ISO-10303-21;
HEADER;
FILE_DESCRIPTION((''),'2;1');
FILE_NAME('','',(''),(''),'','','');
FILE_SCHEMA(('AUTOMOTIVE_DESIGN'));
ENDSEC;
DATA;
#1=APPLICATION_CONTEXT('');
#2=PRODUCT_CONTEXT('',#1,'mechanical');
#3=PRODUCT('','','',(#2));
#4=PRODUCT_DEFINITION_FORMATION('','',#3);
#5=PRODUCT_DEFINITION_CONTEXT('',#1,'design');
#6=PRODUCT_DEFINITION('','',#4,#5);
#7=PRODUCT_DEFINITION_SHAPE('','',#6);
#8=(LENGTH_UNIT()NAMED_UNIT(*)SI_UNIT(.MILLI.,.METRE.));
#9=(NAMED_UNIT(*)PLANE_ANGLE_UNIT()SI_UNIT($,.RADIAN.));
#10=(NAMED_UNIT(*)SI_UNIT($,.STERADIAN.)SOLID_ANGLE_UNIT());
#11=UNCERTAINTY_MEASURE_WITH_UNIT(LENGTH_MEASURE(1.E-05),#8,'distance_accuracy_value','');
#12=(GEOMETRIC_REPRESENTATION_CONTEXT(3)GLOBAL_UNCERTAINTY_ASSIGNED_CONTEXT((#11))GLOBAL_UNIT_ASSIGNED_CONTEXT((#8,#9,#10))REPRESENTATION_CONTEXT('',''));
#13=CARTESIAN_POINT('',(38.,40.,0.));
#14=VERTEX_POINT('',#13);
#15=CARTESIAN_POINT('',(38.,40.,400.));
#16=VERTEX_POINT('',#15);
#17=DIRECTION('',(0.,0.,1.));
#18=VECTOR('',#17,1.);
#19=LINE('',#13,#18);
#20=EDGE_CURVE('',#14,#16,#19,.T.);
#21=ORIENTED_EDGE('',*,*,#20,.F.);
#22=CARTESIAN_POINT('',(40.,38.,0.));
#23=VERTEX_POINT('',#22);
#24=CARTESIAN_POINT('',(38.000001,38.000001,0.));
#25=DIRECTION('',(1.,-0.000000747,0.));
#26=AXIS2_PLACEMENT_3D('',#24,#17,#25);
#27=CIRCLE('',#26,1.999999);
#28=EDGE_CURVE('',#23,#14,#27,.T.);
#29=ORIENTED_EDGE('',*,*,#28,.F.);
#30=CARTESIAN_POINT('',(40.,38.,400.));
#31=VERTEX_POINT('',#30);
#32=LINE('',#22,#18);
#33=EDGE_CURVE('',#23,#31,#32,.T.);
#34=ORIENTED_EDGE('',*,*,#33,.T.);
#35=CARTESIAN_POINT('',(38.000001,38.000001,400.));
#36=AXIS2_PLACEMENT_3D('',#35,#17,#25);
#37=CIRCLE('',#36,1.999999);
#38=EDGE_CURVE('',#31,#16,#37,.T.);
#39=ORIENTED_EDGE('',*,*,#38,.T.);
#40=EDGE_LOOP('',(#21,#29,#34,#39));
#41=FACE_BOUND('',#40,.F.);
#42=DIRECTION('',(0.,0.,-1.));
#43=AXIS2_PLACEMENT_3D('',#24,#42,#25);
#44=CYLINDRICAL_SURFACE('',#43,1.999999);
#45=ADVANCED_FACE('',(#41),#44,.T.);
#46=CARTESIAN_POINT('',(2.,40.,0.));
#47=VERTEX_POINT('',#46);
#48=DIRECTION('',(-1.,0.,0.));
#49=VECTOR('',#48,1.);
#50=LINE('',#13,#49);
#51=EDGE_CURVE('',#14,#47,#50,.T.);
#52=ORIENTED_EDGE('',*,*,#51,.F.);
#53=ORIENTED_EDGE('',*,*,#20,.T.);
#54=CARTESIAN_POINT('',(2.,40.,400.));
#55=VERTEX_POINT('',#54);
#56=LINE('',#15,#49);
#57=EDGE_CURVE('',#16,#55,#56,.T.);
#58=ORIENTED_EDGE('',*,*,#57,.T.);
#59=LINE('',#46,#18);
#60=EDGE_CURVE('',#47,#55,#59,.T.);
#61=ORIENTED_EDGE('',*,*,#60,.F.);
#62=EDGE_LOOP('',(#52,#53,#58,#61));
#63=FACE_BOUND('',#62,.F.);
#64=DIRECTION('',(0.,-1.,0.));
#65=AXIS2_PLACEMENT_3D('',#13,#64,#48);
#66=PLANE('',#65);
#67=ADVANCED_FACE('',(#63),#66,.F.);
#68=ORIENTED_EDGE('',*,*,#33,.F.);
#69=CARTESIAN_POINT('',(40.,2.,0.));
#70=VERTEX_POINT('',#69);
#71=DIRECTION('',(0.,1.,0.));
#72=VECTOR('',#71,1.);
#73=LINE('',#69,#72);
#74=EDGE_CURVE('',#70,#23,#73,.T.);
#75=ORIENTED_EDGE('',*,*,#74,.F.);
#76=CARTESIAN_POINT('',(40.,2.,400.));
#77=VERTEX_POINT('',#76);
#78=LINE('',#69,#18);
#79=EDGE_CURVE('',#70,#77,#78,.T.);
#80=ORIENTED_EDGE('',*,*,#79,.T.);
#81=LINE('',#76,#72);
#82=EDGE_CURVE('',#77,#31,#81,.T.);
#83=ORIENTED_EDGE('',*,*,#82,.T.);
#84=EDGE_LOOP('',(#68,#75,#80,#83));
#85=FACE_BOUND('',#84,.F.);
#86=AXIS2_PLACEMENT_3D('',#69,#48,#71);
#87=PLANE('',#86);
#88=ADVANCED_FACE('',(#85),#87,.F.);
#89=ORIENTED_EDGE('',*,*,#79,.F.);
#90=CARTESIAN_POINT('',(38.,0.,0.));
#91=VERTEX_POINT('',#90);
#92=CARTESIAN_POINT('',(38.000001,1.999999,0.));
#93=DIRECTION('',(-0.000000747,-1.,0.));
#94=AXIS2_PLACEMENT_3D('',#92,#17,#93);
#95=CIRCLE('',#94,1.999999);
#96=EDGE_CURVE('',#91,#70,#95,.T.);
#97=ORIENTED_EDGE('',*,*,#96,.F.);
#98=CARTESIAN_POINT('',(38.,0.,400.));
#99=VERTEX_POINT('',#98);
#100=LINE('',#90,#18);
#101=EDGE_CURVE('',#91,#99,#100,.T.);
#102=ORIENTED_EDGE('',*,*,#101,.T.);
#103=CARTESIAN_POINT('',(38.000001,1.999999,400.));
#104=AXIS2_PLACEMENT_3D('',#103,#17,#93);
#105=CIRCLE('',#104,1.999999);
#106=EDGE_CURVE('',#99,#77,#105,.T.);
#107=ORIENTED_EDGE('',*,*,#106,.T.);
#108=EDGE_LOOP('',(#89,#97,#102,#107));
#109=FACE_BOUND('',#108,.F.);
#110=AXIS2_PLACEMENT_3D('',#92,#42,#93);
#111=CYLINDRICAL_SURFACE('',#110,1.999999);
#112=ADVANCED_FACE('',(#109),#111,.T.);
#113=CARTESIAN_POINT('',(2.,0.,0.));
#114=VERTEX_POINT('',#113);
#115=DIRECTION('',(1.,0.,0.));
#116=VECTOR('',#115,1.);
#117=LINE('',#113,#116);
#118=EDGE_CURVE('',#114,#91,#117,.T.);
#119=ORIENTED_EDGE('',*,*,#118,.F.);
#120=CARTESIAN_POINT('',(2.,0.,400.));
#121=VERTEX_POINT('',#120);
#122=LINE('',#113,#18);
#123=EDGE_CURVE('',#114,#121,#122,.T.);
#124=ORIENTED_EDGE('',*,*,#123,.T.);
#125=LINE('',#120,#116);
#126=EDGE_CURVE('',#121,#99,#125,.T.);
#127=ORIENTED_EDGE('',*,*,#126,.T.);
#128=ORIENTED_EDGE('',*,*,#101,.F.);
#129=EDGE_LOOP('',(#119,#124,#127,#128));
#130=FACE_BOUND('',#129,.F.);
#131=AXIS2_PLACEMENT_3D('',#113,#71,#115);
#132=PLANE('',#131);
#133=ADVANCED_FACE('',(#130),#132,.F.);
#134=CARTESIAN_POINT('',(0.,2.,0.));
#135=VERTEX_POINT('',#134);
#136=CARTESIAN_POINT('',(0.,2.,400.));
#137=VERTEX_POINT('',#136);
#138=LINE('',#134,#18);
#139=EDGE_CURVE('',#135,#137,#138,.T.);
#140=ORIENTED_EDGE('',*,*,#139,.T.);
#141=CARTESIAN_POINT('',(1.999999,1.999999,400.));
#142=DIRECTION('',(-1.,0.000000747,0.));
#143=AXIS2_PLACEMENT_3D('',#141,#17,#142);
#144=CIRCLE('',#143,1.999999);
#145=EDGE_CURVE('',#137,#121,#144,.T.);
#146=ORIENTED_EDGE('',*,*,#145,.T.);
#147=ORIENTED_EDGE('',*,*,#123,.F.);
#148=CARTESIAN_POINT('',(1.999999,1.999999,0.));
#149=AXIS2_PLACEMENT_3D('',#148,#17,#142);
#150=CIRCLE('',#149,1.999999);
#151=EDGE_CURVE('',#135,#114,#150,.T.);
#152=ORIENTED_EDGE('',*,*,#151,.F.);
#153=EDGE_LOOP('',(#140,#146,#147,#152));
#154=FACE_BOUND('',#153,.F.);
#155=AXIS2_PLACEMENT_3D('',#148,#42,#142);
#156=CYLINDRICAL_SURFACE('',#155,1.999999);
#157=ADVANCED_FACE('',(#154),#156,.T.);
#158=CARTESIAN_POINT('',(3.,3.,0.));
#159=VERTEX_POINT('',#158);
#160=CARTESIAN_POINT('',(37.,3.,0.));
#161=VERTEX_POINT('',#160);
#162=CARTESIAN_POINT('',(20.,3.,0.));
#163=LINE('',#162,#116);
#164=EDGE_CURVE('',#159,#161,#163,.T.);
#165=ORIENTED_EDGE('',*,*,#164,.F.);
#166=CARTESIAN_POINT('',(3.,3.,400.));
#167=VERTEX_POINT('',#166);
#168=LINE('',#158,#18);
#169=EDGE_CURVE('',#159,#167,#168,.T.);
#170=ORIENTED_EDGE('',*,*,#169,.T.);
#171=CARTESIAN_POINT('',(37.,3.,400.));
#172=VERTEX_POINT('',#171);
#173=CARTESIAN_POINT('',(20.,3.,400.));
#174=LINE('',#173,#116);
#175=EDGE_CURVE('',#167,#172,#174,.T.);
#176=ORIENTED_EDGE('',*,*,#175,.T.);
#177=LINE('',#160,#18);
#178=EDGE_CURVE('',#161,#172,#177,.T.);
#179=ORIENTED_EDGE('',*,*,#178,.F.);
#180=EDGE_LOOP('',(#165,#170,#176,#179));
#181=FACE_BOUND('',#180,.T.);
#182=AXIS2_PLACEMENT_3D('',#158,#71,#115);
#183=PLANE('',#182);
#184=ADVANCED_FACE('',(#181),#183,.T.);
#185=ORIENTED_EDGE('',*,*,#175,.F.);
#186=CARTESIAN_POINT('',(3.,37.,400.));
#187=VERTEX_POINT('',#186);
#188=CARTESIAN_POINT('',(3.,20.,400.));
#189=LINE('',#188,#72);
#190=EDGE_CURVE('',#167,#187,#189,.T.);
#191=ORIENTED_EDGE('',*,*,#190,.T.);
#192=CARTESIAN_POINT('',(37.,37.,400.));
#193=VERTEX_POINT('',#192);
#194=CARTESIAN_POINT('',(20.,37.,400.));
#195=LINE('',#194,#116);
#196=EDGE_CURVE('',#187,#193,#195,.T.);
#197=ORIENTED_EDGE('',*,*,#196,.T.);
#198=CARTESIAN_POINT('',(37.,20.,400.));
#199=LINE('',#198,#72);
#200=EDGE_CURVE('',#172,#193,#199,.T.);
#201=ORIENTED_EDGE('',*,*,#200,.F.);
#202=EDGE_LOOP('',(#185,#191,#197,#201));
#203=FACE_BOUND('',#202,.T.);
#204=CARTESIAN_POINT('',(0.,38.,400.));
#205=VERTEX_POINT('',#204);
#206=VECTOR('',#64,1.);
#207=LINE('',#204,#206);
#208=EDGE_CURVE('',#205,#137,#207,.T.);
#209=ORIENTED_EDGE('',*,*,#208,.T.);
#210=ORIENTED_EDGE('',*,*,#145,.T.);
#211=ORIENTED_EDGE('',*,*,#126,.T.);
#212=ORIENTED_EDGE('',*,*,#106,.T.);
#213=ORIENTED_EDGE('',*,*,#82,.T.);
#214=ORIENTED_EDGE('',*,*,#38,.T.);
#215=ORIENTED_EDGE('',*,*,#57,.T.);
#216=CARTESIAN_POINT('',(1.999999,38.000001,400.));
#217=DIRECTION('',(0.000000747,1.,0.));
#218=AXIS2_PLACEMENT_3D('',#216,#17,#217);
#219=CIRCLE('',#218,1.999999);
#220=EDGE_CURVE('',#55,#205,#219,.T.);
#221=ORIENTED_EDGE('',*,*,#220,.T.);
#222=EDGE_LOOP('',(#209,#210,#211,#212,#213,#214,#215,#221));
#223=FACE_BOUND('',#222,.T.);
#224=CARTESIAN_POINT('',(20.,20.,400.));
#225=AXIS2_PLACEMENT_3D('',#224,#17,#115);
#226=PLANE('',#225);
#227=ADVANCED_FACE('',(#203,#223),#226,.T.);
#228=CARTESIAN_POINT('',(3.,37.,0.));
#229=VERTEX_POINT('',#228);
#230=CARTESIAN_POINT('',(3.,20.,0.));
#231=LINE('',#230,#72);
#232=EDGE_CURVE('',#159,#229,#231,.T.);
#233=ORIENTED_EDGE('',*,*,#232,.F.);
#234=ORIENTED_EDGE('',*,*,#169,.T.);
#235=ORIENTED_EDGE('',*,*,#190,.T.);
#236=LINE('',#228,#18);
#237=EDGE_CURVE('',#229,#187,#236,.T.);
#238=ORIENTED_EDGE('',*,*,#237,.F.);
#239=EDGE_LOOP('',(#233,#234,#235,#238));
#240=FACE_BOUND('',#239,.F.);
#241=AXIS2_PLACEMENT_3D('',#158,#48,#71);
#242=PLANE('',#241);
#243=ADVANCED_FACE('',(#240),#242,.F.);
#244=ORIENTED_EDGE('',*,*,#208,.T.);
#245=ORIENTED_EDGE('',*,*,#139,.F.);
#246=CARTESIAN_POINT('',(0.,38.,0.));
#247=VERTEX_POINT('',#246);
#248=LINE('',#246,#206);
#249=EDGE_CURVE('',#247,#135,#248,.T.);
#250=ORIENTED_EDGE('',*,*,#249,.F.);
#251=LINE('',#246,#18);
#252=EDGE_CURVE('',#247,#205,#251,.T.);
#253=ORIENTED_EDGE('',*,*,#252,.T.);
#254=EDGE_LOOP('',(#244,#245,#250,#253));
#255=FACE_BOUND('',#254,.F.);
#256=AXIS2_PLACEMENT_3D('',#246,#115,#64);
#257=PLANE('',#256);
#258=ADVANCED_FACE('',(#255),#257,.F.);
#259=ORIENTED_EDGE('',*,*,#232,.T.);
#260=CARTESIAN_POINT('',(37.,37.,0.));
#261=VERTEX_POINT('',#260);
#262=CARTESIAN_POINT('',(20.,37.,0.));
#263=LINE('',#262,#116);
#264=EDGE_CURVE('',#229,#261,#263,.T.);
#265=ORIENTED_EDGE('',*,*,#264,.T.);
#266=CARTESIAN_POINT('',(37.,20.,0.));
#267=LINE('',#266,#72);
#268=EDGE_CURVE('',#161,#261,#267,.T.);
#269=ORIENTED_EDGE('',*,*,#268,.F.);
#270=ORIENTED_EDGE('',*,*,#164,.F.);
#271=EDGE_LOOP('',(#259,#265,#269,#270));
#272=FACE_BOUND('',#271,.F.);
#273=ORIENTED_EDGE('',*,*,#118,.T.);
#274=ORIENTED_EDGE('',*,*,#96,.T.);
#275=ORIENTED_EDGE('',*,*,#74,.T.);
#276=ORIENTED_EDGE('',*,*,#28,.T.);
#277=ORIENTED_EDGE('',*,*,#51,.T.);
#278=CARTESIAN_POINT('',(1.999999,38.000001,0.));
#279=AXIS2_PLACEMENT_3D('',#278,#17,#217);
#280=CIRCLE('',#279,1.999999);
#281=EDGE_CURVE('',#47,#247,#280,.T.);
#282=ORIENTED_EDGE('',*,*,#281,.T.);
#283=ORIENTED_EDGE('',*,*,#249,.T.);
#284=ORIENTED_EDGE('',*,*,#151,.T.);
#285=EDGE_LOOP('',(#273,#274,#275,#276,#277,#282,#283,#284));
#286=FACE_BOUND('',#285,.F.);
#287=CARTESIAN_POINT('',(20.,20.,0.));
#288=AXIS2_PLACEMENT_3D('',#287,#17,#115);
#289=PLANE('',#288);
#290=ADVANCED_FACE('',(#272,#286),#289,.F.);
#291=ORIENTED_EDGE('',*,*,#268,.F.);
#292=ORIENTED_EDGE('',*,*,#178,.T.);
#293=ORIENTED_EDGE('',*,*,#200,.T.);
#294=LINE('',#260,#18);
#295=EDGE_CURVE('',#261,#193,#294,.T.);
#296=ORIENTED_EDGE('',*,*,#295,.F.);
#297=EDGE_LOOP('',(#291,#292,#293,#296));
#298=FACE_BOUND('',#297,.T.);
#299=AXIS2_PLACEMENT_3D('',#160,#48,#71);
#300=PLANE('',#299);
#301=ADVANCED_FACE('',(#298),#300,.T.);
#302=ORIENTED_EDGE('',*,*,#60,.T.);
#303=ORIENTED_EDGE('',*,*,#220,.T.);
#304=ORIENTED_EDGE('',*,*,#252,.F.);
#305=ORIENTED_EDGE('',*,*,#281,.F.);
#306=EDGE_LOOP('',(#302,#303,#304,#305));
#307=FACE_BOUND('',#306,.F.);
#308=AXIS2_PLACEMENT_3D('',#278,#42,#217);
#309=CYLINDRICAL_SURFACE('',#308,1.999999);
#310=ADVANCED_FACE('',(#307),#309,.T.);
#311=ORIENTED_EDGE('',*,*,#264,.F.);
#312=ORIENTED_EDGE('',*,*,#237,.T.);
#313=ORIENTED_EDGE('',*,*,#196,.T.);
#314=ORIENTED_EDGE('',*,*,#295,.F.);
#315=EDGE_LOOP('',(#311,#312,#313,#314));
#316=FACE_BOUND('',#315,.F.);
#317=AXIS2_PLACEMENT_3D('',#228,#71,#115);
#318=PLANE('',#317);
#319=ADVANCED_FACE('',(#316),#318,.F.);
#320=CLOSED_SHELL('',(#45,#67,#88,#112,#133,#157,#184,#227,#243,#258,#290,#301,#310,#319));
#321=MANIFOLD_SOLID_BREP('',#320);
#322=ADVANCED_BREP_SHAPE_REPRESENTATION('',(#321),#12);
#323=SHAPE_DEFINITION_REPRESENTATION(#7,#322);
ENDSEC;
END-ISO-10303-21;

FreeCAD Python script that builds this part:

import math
import FreeCAD as App
import Part
import Sketcher
from FreeCAD import Vector
Q = App.Units.Quantity


def add_polygon(sketch, points):
    """Adds a closed chain of lines whose ends are joined by coincident constraints."""
    first, n = sketch.GeometryCount, len(points)
    for a, b in zip(points, points[1:] + points[:1]):
        sketch.addGeometry(Part.LineSegment(App.Vector(*a, 0), App.Vector(*b, 0)), False)
    for i in range(n):
        sketch.addConstraint(Sketcher.Constraint("Coincident", first + i, 2, first + (i + 1) % n, 1))

doc = App.newDocument("Part")
body = doc.addObject("PartDesign::Body", "Body")

# Sketch on XY plane
sketch1 = body.newObject("Sketcher::SketchObject", "Sketch")
sketch1.AttachmentSupport = (doc.getObject("XY_Plane"), [""])
sketch1.MapMode = "FlatFace"
sketch1.addGeometry(Part.LineSegment(Vector(2, 0, 0), Vector(38, 0, 0)), False)  # 0
sketch1.addGeometry(Part.ArcOfCircle(Part.Circle(Vector(38, 2, 0), Vector(0, 0, 1), 2), math.radians(-90), math.radians(0)), False)  # 1
sketch1.addGeometry(Part.LineSegment(Vector(40, 2, 0), Vector(40, 38, 0)), False)  # 2
sketch1.addGeometry(Part.ArcOfCircle(Part.Circle(Vector(38, 38, 0), Vector(0, 0, 1), 2), math.radians(0), math.radians(90)), False)  # 3
sketch1.addGeometry(Part.LineSegment(Vector(38, 40, 0), Vector(2, 40, 0)), False)  # 4
sketch1.addGeometry(Part.ArcOfCircle(Part.Circle(Vector(2, 38, 0), Vector(0, 0, 1), 2), math.radians(90), math.radians(180)), False)  # 5
sketch1.addGeometry(Part.LineSegment(Vector(0, 38, 0), Vector(0, 2, 0)), False)  # 6
sketch1.addGeometry(Part.ArcOfCircle(Part.Circle(Vector(2, 2, 0), Vector(0, 0, 1), 2), math.radians(180), math.radians(270)), False)  # 7
add_polygon(sketch1, [(37, 3), (3, 3), (3, 37), (37, 37)])  # lines 8-11
sketch1.addConstraint(Sketcher.Constraint("Tangent", 0, 2, 1, 1))
sketch1.addConstraint(Sketcher.Constraint("Tangent", 1, 2, 2, 1))
sketch1.addConstraint(Sketcher.Constraint("Tangent", 2, 2, 3, 1))
sketch1.addConstraint(Sketcher.Constraint("Tangent", 3, 2, 4, 1))
sketch1.addConstraint(Sketcher.Constraint("Tangent", 4, 2, 5, 1))
sketch1.addConstraint(Sketcher.Constraint("Tangent", 5, 2, 6, 1))
sketch1.addConstraint(Sketcher.Constraint("Tangent", 6, 2, 7, 1))
sketch1.addConstraint(Sketcher.Constraint("Tangent", 7, 2, 0, 1))
sketch1.addConstraint(Sketcher.Constraint("Horizontal", 0))
sketch1.addConstraint(Sketcher.Constraint("Vertical", 2))
sketch1.addConstraint(Sketcher.Constraint("Horizontal", 4))
sketch1.addConstraint(Sketcher.Constraint("Vertical", 6))
sketch1.addConstraint(Sketcher.Constraint("Horizontal", 8))
sketch1.addConstraint(Sketcher.Constraint("Vertical", 9))
sketch1.addConstraint(Sketcher.Constraint("Horizontal", 10))
sketch1.addConstraint(Sketcher.Constraint("Vertical", 11))
sketch1.addConstraint(Sketcher.Constraint("Equal", 1, 3))
sketch1.addConstraint(Sketcher.Constraint("Equal", 3, 5))
sketch1.addConstraint(Sketcher.Constraint("Equal", 5, 7))
sketch1.addConstraint(Sketcher.Constraint("PointOnObject", 0, 2, -1))
sketch1.addConstraint(Sketcher.Constraint("PointOnObject", 5, 2, -2))
sketch1.addConstraint(Sketcher.Constraint("Equal", 4, 2))
sketch1.addConstraint(Sketcher.Constraint("Equal", 10, 9))
sketch1.addConstraint(Sketcher.Constraint("Radius", 1, Q("1.999999 mm")))
sketch1.addConstraint(Sketcher.Constraint("DistanceX", 0, 1, 0, 2, Q("36 mm")))
sketch1.addConstraint(Sketcher.Constraint("DistanceX", 8, 2, 8, 1, Q("34 mm")))
sketch1.addConstraint(Sketcher.Constraint("DistanceX", -1, 1, 8, 2, Q("3 mm")))
sketch1.addConstraint(Sketcher.Constraint("DistanceY", -1, 1, 8, 2, Q("3 mm")))
pad1 = body.newObject("PartDesign::Pad", "Pad")
pad1.Profile = sketch1
pad1.Length = 400

doc.recompute()
